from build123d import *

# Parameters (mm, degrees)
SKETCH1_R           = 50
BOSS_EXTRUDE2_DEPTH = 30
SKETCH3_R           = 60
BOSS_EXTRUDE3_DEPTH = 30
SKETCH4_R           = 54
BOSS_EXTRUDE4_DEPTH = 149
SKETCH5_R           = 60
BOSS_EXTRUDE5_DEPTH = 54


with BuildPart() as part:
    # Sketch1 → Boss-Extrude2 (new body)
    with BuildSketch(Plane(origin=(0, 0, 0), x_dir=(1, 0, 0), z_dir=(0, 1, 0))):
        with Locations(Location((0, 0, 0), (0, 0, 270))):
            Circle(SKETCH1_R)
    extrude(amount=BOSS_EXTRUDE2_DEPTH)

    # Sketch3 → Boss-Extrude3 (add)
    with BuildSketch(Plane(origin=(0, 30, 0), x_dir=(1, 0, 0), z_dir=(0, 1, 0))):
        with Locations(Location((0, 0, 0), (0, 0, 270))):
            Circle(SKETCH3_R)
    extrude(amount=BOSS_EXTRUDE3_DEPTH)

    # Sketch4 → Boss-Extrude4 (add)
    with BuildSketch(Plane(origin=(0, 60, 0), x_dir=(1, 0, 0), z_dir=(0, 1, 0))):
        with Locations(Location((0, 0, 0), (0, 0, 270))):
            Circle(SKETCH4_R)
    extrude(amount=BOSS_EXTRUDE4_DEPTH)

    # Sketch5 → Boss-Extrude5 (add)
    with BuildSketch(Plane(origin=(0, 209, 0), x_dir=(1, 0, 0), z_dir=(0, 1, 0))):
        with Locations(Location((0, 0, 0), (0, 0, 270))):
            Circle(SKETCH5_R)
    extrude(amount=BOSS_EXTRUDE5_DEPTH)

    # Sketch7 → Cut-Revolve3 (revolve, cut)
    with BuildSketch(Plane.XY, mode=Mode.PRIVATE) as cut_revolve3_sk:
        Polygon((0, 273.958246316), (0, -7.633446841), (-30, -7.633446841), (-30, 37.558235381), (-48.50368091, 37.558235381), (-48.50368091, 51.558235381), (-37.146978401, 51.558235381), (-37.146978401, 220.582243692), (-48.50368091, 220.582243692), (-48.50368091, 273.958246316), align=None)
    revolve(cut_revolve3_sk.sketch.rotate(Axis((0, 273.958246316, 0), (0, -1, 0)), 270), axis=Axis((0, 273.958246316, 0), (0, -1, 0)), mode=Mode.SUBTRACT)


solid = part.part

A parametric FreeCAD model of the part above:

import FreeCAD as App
import Part
import Sketcher
Q = App.Units.Quantity

doc = App.newDocument("Part")
params = doc.addObject("Spreadsheet::Sheet", "Params")
for row, (alias, value) in enumerate([
    ("sketch1_diameter", "100 mm"),
    ("pad1_length", "30 mm"),
    ("sketch2_diameter", "120 mm"),
    ("pad2_length", "30 mm"),
    ("sketch3_diameter", "108 mm"),
    ("pad3_length", "149 mm"),
    ("sketch4_diameter", "120 mm"),
    ("pad4_length", "54 mm"),
    ("sketch5_width", "30 mm"),
    ("sketch5_height", "14 mm"),
    ("groove_angle", "360 deg"),
], start=1):
    params.set(f"A{row}", alias)
    params.set(f"B{row}", "=" + value)
    params.setAlias(f"B{row}", alias)

body = doc.addObject("PartDesign::Body", "Body")

# Sketch on XZ plane
sketch1 = body.newObject("Sketcher::SketchObject", "Sketch")
sketch1.AttachmentSupport = (doc.getObject("XZ_Plane"), [""])
sketch1.MapMode = "FlatFace"
sketch1.addGeometry(Part.Circle(App.Vector(0, 0, 0), App.Vector(0, 0, 1), 50), False)
sketch1.addConstraint(Sketcher.Constraint("Coincident", 0, 3, -1, 1))
sketch1.addConstraint(Sketcher.Constraint("Diameter", 0, Q("100 mm")))
sketch1.setExpression("Constraints[1]", "Params.sketch1_diameter")
pad1 = body.newObject("PartDesign::Pad", "Pad")
pad1.Profile = sketch1
pad1.setExpression("Length", "Params.pad1_length")
pad1.Reversed = True

# Sketch on XZ plane
sketch2 = body.newObject("Sketcher::SketchObject", "Sketch001")
sketch2.AttachmentSupport = (doc.getObject("XZ_Plane"), [""])
sketch2.MapMode = "FlatFace"
sketch2.AttachmentOffset = App.Placement(App.Vector(0, 0, -30), App.Rotation())
sketch2.addGeometry(Part.Circle(App.Vector(0, 0, 0), App.Vector(0, 0, 1), 60), False)
sketch2.addConstraint(Sketcher.Constraint("Coincident", 0, 3, -1, 1))
sketch2.addConstraint(Sketcher.Constraint("Diameter", 0, Q("120 mm")))
sketch2.setExpression("Constraints[1]", "Params.sketch2_diameter")
pad2 = body.newObject("PartDesign::Pad", "Pad001")
pad2.Profile = sketch2
pad2.setExpression("Length", "Params.pad2_length")
pad2.Reversed = True

# Sketch on XZ plane
sketch3 = body.newObject("Sketcher::SketchObject", "Sketch002")
sketch3.AttachmentSupport = (doc.getObject("XZ_Plane"), [""])
sketch3.MapMode = "FlatFace"
sketch3.AttachmentOffset = App.Placement(App.Vector(0, 0, -60), App.Rotation())
sketch3.addGeometry(Part.Circle(App.Vector(0, 0, 0), App.Vector(0, 0, 1), 54), False)
sketch3.addConstraint(Sketcher.Constraint("Coincident", 0, 3, -1, 1))
sketch3.addConstraint(Sketcher.Constraint("Diameter", 0, Q("108 mm")))
sketch3.setExpression("Constraints[1]", "Params.sketch3_diameter")
pad3 = body.newObject("PartDesign::Pad", "Pad002")
pad3.Profile = sketch3
pad3.setExpression("Length", "Params.pad3_length")
pad3.Reversed = True

# Sketch on XZ plane
sketch4 = body.newObject("Sketcher::SketchObject", "Sketch003")
sketch4.AttachmentSupport = (doc.getObject("XZ_Plane"), [""])
sketch4.MapMode = "FlatFace"
sketch4.AttachmentOffset = App.Placement(App.Vector(0, 0, -209), App.Rotation())
sketch4.addGeometry(Part.Circle(App.Vector(0, 0, 0), App.Vector(0, 0, 1), 60), False)
sketch4.addConstraint(Sketcher.Constraint("Coincident", 0, 3, -1, 1))
sketch4.addConstraint(Sketcher.Constraint("Diameter", 0, Q("120 mm")))
sketch4.setExpression("Constraints[1]", "Params.sketch4_diameter")
pad4 = body.newObject("PartDesign::Pad", "Pad003")
pad4.Profile = sketch4
pad4.setExpression("Length", "Params.pad4_length")
pad4.Reversed = True

# Sketch on XY plane
sketch5 = body.newObject("Sketcher::SketchObject", "Sketch004")
sketch5.AttachmentSupport = (doc.getObject("XY_Plane"), [""])
sketch5.MapMode = "FlatFace"
sketch5.addGeometry(Part.LineSegment(App.Vector(0, -8, 0), App.Vector(0, 274, 0)), False)
sketch5.addGeometry(Part.LineSegment(App.Vector(0, 274, 0), App.Vector(-49, 274, 0)), False)
sketch5.addGeometry(Part.LineSegment(App.Vector(-49, 274, 0), App.Vector(-49, 221, 0)), False)
sketch5.addGeometry(Part.LineSegment(App.Vector(-49, 221, 0), App.Vector(-37, 221, 0)), False)
sketch5.addGeometry(Part.LineSegment(App.Vector(-37, 221, 0), App.Vector(-37, 52, 0)), False)
sketch5.addGeometry(Part.LineSegment(App.Vector(-37, 52, 0), App.Vector(-49, 52, 0)), False)
sketch5.addGeometry(Part.LineSegment(App.Vector(-49, 52, 0), App.Vector(-49, 38, 0)), False)
sketch5.addGeometry(Part.LineSegment(App.Vector(-49, 38, 0), App.Vector(-30, 38, 0)), False)
sketch5.addGeometry(Part.LineSegment(App.Vector(-30, 38, 0), App.Vector(-30, -8, 0)), False)
sketch5.addGeometry(Part.LineSegment(App.Vector(-30, -8, 0), App.Vector(0, -8, 0)), False)
sketch5.addConstraint(Sketcher.Constraint("Coincident", 0, 2, 1, 1))
sketch5.addConstraint(Sketcher.Constraint("Coincident", 1, 2, 2, 1))
sketch5.addConstraint(Sketcher.Constraint("Coincident", 2, 2, 3, 1))
sketch5.addConstraint(Sketcher.Constraint("Coincident", 3, 2, 4, 1))
sketch5.addConstraint(Sketcher.Constraint("Coincident", 4, 2, 5, 1))
sketch5.addConstraint(Sketcher.Constraint("Coincident", 5, 2, 6, 1))
sketch5.addConstraint(Sketcher.Constraint("Coincident", 6, 2, 7, 1))
sketch5.addConstraint(Sketcher.Constraint("Coincident", 7, 2, 8, 1))
sketch5.addConstraint(Sketcher.Constraint("Coincident", 8, 2, 9, 1))
sketch5.addConstraint(Sketcher.Constraint("Coincident", 9, 2, 0, 1))
sketch5.addConstraint(Sketcher.Constraint("Vertical", 0))
sketch5.addConstraint(Sketcher.Constraint("Horizontal", 1))
sketch5.addConstraint(Sketcher.Constraint("Vertical", 2))
sketch5.addConstraint(Sketcher.Constraint("Horizontal", 3))
sketch5.addConstraint(Sketcher.Constraint("Vertical", 4))
sketch5.addConstraint(Sketcher.Constraint("Horizontal", 5))
sketch5.addConstraint(Sketcher.Constraint("Vertical", 6))
sketch5.addConstraint(Sketcher.Constraint("Horizontal", 7))
sketch5.addConstraint(Sketcher.Constraint("Vertical", 8))
sketch5.addConstraint(Sketcher.Constraint("Horizontal", 9))
sketch5.addConstraint(Sketcher.Constraint("PointOnObject", 0, 2, -2))
sketch5.addConstraint(Sketcher.Constraint("Vertical", 2, 2, 5, 2))
sketch5.addConstraint(Sketcher.Constraint("DistanceX", 9, 1, 9, 2, Q("30 mm")))
sketch5.addConstraint(Sketcher.Constraint("DistanceY", 6, 2, 6, 1, Q("14 mm")))
sketch5.addConstraint(Sketcher.Constraint("DistanceX", 1, 2, 1, 1, Q("48.503681 mm")))
sketch5.addConstraint(Sketcher.Constraint("DistanceY", 4, 2, 4, 1, Q("169.024008 mm")))
sketch5.addConstraint(Sketcher.Constraint("DistanceX", 3, 1, 3, 2, Q("11.356703 mm")))
sketch5.addConstraint(Sketcher.Constraint("DistanceY", 0, 1, 0, 2, Q("281.591693 mm")))
sketch5.addConstraint(Sketcher.Constraint("DistanceY", 2, 2, 2, 1, Q("53.376003 mm")))
sketch5.addConstraint(Sketcher.Constraint("DistanceY", -1, 1, 0, 2, Q("273.958246 mm")))
sketch5.setExpression("Constraints[22]", "Params.sketch5_width")
sketch5.setExpression("Constraints[23]", "Params.sketch5_height")
groove = body.newObject("PartDesign::Groove", "Groove")
groove.Profile = sketch5
groove.ReferenceAxis = (sketch5, ["V_Axis"])
groove.setExpression("Angle", "Params.groove_angle")

doc.recompute()
